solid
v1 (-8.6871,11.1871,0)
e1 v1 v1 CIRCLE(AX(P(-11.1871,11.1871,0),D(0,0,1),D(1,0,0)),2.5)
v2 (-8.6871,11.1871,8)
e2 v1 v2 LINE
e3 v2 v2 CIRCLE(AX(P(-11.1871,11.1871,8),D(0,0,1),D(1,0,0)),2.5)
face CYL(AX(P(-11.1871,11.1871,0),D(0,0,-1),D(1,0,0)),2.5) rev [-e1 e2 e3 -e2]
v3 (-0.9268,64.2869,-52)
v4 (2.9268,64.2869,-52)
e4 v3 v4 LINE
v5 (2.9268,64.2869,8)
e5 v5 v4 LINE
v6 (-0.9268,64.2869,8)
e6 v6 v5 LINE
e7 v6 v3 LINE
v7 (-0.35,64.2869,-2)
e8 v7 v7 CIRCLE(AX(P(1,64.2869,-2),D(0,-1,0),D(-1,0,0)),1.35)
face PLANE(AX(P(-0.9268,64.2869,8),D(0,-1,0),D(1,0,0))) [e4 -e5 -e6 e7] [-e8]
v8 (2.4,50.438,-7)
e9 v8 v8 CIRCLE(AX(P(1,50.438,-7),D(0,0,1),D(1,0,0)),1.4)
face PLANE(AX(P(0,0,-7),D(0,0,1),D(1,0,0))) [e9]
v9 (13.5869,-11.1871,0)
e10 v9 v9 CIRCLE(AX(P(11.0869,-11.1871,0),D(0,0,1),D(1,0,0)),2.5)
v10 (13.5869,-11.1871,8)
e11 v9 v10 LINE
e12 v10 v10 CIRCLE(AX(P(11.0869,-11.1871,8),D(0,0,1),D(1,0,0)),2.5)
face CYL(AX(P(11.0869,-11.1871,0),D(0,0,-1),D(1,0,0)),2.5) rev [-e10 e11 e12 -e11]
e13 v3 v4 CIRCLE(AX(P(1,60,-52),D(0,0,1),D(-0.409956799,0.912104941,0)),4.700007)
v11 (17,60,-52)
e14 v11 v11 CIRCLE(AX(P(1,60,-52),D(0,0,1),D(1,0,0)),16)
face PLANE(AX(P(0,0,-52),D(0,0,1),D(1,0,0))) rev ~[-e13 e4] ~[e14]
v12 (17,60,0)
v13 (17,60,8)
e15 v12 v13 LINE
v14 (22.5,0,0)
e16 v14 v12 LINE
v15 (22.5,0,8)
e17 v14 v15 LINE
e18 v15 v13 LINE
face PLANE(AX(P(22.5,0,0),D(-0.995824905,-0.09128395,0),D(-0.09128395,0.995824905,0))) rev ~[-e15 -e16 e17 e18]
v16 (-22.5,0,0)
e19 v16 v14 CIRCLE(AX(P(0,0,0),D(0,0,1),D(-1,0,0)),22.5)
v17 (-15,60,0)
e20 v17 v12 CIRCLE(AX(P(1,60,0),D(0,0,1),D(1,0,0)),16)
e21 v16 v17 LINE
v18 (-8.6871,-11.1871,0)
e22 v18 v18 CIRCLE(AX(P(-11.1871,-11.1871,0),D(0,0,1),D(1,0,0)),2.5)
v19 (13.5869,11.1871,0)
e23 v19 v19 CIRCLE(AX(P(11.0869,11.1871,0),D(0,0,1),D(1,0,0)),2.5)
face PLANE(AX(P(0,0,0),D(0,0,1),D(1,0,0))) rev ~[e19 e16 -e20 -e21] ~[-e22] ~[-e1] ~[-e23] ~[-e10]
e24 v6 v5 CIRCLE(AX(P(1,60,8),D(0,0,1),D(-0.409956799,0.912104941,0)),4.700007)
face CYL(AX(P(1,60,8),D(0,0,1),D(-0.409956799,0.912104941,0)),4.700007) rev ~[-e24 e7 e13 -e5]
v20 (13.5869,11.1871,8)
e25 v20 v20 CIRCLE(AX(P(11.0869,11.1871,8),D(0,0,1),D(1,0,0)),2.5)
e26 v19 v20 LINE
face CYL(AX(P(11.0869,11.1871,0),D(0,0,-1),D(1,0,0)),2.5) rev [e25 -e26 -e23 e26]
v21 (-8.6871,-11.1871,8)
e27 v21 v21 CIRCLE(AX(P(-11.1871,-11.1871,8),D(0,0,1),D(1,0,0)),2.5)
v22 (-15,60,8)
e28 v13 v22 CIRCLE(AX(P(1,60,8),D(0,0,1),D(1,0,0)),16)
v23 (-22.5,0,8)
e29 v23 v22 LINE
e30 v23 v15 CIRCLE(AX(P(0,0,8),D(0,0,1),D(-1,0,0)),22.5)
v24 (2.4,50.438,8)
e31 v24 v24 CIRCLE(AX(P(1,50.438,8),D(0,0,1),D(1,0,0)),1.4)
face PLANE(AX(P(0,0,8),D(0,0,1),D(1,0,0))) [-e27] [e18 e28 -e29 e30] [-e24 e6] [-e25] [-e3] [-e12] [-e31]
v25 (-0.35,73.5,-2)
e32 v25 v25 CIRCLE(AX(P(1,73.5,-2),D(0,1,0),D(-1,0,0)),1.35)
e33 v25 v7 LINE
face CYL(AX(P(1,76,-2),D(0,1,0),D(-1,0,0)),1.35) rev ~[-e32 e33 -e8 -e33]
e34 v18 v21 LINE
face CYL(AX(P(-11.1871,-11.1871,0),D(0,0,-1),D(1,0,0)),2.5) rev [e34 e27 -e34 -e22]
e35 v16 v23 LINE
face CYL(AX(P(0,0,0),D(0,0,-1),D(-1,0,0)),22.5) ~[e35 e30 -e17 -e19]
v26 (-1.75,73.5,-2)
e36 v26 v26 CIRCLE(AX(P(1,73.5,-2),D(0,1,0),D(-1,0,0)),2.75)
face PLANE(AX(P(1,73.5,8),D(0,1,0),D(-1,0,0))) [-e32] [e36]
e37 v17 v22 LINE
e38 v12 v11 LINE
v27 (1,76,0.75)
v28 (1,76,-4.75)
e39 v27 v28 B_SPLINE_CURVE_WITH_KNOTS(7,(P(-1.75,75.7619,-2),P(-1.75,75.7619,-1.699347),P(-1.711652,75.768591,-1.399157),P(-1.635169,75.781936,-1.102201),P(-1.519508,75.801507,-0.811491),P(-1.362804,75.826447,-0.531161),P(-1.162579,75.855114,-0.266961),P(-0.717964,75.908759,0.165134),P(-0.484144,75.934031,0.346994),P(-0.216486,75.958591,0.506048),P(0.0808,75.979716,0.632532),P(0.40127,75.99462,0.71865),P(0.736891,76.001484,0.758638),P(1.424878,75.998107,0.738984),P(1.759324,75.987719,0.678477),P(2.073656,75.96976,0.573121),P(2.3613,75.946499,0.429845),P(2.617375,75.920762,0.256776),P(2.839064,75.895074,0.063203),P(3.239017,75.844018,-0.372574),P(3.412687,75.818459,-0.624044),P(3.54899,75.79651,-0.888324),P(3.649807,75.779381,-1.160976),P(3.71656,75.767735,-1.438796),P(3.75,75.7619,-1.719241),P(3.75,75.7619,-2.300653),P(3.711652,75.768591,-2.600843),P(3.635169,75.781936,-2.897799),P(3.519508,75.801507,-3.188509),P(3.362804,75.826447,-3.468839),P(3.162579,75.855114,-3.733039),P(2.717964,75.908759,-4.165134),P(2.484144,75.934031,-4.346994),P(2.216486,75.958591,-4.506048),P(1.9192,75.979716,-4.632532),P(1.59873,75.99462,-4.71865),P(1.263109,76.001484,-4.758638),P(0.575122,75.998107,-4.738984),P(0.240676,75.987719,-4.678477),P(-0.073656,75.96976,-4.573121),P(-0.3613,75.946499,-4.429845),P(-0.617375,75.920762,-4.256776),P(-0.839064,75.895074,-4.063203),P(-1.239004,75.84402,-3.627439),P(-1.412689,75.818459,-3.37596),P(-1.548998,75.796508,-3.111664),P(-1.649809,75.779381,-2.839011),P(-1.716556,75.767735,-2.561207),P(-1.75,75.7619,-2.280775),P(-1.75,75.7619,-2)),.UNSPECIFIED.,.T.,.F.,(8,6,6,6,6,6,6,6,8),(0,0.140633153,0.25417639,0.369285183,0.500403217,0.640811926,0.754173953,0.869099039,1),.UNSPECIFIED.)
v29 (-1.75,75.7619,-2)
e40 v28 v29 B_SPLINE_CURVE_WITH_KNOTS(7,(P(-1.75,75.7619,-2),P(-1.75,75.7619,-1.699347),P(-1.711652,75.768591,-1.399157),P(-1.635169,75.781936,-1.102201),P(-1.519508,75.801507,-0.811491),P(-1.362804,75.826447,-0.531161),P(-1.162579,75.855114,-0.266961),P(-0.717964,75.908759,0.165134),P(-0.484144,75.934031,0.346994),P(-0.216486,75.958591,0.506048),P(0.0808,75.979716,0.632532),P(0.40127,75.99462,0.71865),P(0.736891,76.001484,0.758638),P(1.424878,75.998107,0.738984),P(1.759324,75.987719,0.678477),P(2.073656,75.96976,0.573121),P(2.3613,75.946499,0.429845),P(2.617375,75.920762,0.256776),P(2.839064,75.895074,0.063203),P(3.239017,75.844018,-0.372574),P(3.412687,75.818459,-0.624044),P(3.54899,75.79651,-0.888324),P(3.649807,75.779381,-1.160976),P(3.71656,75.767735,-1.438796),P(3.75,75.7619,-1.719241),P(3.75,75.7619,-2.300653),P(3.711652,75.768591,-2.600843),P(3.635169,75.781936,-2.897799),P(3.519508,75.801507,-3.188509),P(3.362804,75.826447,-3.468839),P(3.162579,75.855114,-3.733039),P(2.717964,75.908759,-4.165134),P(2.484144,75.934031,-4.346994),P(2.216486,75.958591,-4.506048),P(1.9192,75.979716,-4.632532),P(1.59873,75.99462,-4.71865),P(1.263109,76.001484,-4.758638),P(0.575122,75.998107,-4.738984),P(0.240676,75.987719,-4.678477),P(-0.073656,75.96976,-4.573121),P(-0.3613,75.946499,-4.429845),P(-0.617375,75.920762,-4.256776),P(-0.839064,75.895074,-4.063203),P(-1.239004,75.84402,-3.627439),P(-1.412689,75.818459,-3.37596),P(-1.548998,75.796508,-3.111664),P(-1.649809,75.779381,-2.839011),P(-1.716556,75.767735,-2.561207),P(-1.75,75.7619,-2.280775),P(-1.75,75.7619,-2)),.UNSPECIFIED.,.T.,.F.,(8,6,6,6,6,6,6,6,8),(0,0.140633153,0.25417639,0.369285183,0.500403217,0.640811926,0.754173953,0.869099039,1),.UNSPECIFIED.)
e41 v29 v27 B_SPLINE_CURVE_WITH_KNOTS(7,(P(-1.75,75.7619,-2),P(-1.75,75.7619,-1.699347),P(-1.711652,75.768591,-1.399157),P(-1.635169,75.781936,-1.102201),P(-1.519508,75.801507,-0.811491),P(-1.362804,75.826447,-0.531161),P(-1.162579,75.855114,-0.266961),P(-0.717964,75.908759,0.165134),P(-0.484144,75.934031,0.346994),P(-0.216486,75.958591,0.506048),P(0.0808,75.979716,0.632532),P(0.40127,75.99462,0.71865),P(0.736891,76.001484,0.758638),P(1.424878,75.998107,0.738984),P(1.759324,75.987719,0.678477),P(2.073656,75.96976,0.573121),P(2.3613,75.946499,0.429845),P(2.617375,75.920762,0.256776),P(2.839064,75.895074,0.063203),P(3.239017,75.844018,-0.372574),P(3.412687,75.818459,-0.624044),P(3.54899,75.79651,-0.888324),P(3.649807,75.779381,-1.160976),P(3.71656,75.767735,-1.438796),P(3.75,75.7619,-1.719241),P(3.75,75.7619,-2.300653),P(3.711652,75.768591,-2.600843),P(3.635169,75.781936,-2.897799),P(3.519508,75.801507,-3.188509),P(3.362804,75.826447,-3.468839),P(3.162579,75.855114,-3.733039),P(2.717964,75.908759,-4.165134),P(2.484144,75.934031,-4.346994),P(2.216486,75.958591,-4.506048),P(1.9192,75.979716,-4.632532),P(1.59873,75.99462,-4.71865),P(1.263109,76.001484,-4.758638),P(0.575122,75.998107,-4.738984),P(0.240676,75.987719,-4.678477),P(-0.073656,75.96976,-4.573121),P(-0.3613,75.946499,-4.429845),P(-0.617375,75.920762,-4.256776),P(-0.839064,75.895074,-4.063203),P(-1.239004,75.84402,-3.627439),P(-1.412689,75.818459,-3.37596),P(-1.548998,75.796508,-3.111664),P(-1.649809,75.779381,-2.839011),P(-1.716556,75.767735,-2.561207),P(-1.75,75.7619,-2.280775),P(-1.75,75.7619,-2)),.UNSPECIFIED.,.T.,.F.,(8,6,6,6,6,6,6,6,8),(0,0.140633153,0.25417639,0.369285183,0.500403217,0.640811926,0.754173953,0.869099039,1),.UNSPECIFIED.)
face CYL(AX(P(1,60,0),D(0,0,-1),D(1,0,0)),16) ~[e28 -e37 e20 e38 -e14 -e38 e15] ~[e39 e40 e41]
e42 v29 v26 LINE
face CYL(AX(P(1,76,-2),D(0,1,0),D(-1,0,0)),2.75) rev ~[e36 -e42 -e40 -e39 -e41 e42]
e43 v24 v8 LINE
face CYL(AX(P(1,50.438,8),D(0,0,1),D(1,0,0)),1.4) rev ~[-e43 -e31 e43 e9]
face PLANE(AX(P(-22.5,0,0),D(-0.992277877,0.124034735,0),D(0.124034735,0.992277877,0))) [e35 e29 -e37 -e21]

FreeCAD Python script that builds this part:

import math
import FreeCAD as App
import Part
import Sketcher
from FreeCAD import Vector

doc = App.newDocument("Part")
params = doc.addObject("Spreadsheet::Sheet", "Params")
for row, (alias, value) in enumerate([
    ("sketch1_diameter", "5 mm"),
    ("sketch1_radius", "16 mm"),
    ("sketch1_radius2", "22.5 mm"),
    ("pad1_length", "8 mm"),
    ("sketch2_diameter", "32 mm"),
    ("pad2_length", "60 mm"),
    ("sketch3_radius", "4.7 mm"),
    ("sketch4_diameter", "2.7 mm"),
    ("pocket2_length", "12 mm"),
    ("sketch5_diameter", "5.5 mm"),
    ("sketch5_diameter2", "2.7 mm"),
    ("pocket3_length", "2.5 mm"),
    ("sketch6_diameter", "2.8 mm"),
    ("pocket4_length", "15 mm"),
], start=1):
    params.set(f"A{row}", alias)
    params.set(f"B{row}", "=" + value)
    params.setAlias(f"B{row}", alias)

body = doc.addObject("PartDesign::Body", "Body")

sketch1 = body.newObject("Sketcher::SketchObject", "Sketch")
sketch1.AttachmentSupport = (doc.getObject("XY_Plane"), [""])
sketch1.MapMode = "FlatFace"
sketch1.addGeometry([
    Part.LineSegment(Vector(-15, 60, 0), Vector(-22.5, 0, 0)),
    Part.ArcOfCircle(Part.Circle(Vector(0, 0, 0), Vector(0, 0, 1), 22.5), math.radians(180), math.radians(360)),
    Part.LineSegment(Vector(22.5, 0, 0), Vector(17, 60, 0)),
    Part.ArcOfCircle(Part.Circle(Vector(1, 60, 0), Vector(0, 0, 1), 16), math.radians(0), math.radians(180)),
    Part.Circle(Vector(-11.2, -11.2, 0), Vector(0, 0, 1), 2.5),
    Part.Circle(Vector(-11.2, 11.2, 0), Vector(0, 0, 1), 2.5),
    Part.Circle(Vector(11.1, -11.2, 0), Vector(0, 0, 1), 2.5),
    Part.Circle(Vector(11.1, 11.2, 0), Vector(0, 0, 1), 2.5),
], False)
sketch1.addConstraint([
    Sketcher.Constraint("Coincident", 0, 2, 1, 1),
    Sketcher.Constraint("Coincident", 1, 2, 2, 1),
    Sketcher.Constraint("Coincident", 2, 2, 3, 1),
    Sketcher.Constraint("Coincident", 3, 2, 0, 1),
    Sketcher.Constraint("Coincident", 1, 3, -1, 1),
    Sketcher.Constraint("Equal", 4, 5),
    Sketcher.Constraint("Equal", 5, 6),
    Sketcher.Constraint("Equal", 6, 7),
    Sketcher.Constraint("Symmetric", 4, 3, 5, 3, -1),
    Sketcher.Constraint("Symmetric", 6, 3, 7, 3, -1),
    Sketcher.Constraint("PointOnObject", 0, 2, -1),
    Sketcher.Constraint("PointOnObject", 1, 2, -1),
    Sketcher.Constraint("Horizontal", 4, 3, 6, 3),
    Sketcher.Constraint("Horizontal", 3, 3, 2, 2),
    Sketcher.Constraint("Horizontal", 2, 2, 3, 2),
    Sketcher.Constraint("Diameter", 4, 5.0),
    Sketcher.Constraint("Radius", 3, 16.0),
    Sketcher.Constraint("Radius", 1, 22.5),
    Sketcher.Constraint("DistanceX", -1, 1, 3, 3, 1.0),
    Sketcher.Constraint("DistanceY", -1, 1, 3, 3, 60.0),
    Sketcher.Constraint("DistanceX", 4, 3, 6, 3, 22.274),
    Sketcher.Constraint("DistanceX", 4, 3, -1, 1, 11.187),
    Sketcher.Constraint("DistanceY", 4, 3, -1, 1, 11.187),
])
sketch1.setExpression("Constraints[15]", "Params.sketch1_diameter")
sketch1.setExpression("Constraints[16]", "Params.sketch1_radius")
sketch1.setExpression("Constraints[17]", "Params.sketch1_radius2")
pad1 = body.newObject("PartDesign::Pad", "Pad")
pad1.Profile = sketch1
pad1.setExpression("Length", "Params.pad1_length")

sketch2 = body.newObject("Sketcher::SketchObject", "Sketch001")
sketch2.AttachmentSupport = (doc.getObject("XY_Plane"), [""])
sketch2.MapMode = "FlatFace"
sketch2.AttachmentOffset = App.Placement(Vector(0, 0, 8), App.Rotation())
sketch2.addGeometry(Part.Circle(Vector(1, 60, 0), Vector(0, 0, 1), 16), False)
sketch2.addConstraint([
    Sketcher.Constraint("Diameter", 0, 32.0),
    Sketcher.Constraint("DistanceX", -1, 1, 0, 3, 1.0),
    Sketcher.Constraint("DistanceY", -1, 1, 0, 3, 60.0),
])
sketch2.setExpression("Constraints[0]", "Params.sketch2_diameter")
pad2 = body.newObject("PartDesign::Pad", "Pad001")
pad2.Profile = sketch2
pad2.setExpression("Length", "Params.pad2_length")
pad2.Reversed = True

sketch3 = body.newObject("Sketcher::SketchObject", "Sketch002")
sketch3.AttachmentSupport = (doc.getObject("XY_Plane"), [""])
sketch3.MapMode = "FlatFace"
sketch3.AttachmentOffset = App.Placement(Vector(0, 0, 8), App.Rotation())
sketch3.addGeometry([
    Part.LineSegment(Vector(2.9, 64.3, 0), Vector(-0.9, 64.3, 0)),
    Part.ArcOfCircle(Part.Circle(Vector(1, 60, 0), Vector(0, 0, 1), 4.7), math.radians(114), math.radians(426)),
], False)
sketch3.addConstraint([
    Sketcher.Constraint("Coincident", 0, 1, 1, 2),
    Sketcher.Constraint("Coincident", 1, 1, 0, 2),
    Sketcher.Constraint("Horizontal", 0),
    Sketcher.Constraint("Radius", 1, 4.7),
    Sketcher.Constraint("DistanceX", -1, 1, 1, 3, 1.0),
    Sketcher.Constraint("DistanceY", -1, 1, 1, 3, 60.0),
    Sketcher.Constraint("DistanceY", 1, 3, 0, 1, 4.287),
])
sketch3.setExpression("Constraints[3]", "Params.sketch3_radius")
pocket1 = body.newObject("PartDesign::Pocket", "Pocket")
pocket1.Profile = sketch3
pocket1.Type = "ThroughAll"

sketch4 = body.newObject("Sketcher::SketchObject", "Sketch003")
sketch4.AttachmentSupport = (doc.getObject("XZ_Plane"), [""])
sketch4.MapMode = "FlatFace"
sketch4.AttachmentOffset = App.Placement(Vector(0, 0, -76), App.Rotation())
sketch4.addGeometry(Part.Circle(Vector(1, -2, 0), Vector(0, 0, 1), 1.4), False)
sketch4.addConstraint([
    Sketcher.Constraint("Diameter", 0, 2.7),
    Sketcher.Constraint("DistanceX", -1, 1, 0, 3, 1.0),
    Sketcher.Constraint("DistanceY", 0, 3, -1, 1, 2.0),
])
sketch4.setExpression("Constraints[0]", "Params.sketch4_diameter")
pocket2 = body.newObject("PartDesign::Pocket", "Pocket001")
pocket2.Profile = sketch4
pocket2.setExpression("Length", "Params.pocket2_length")
pocket2.Reversed = True

sketch5 = body.newObject("Sketcher::SketchObject", "Sketch004")
sketch5.AttachmentSupport = (doc.getObject("XZ_Plane"), [""])
sketch5.MapMode = "FlatFace"
sketch5.AttachmentOffset = App.Placement(Vector(0, 0, -76), App.Rotation())
sketch5.addGeometry([
    Part.Circle(Vector(1, -2, 0), Vector(0, 0, 1), 2.8),
    Part.Circle(Vector(1, -2, 0), Vector(0, 0, 1), 1.4),
], False)
sketch5.addConstraint([
    Sketcher.Constraint("Coincident", 1, 3, 0, 3),
    Sketcher.Constraint("Diameter", 0, 5.5),
    Sketcher.Constraint("Diameter", 1, 2.7),
    Sketcher.Constraint("DistanceX", -1, 1, 0, 3, 1.0),
    Sketcher.Constraint("DistanceY", 0, 3, -1, 1, 2.0),
])
sketch5.setExpression("Constraints[1]", "Params.sketch5_diameter")
sketch5.setExpression("Constraints[2]", "Params.sketch5_diameter2")
pocket3 = body.newObject("PartDesign::Pocket", "Pocket002")
pocket3.Profile = sketch5
pocket3.setExpression("Length", "Params.pocket3_length")
pocket3.Reversed = True

sketch6 = body.newObject("Sketcher::SketchObject", "Sketch005")
sketch6.AttachmentSupport = (doc.getObject("XY_Plane"), [""])
sketch6.MapMode = "FlatFace"
sketch6.AttachmentOffset = App.Placement(Vector(0, 0, 8), App.Rotation())
sketch6.addGeometry(Part.Circle(Vector(1, 50.4, 0), Vector(0, 0, 1), 1.4), False)
sketch6.addConstraint([
    Sketcher.Constraint("Diameter", 0, 2.8),
    Sketcher.Constraint("DistanceX", -1, 1, 0, 3, 1.0),
    Sketcher.Constraint("DistanceY", -1, 1, 0, 3, 50.438),
])
sketch6.setExpression("Constraints[0]", "Params.sketch6_diameter")
pocket4 = body.newObject("PartDesign::Pocket", "Pocket003")
pocket4.Profile = sketch6
pocket4.setExpression("Length", "Params.pocket4_length")

doc.recompute()
